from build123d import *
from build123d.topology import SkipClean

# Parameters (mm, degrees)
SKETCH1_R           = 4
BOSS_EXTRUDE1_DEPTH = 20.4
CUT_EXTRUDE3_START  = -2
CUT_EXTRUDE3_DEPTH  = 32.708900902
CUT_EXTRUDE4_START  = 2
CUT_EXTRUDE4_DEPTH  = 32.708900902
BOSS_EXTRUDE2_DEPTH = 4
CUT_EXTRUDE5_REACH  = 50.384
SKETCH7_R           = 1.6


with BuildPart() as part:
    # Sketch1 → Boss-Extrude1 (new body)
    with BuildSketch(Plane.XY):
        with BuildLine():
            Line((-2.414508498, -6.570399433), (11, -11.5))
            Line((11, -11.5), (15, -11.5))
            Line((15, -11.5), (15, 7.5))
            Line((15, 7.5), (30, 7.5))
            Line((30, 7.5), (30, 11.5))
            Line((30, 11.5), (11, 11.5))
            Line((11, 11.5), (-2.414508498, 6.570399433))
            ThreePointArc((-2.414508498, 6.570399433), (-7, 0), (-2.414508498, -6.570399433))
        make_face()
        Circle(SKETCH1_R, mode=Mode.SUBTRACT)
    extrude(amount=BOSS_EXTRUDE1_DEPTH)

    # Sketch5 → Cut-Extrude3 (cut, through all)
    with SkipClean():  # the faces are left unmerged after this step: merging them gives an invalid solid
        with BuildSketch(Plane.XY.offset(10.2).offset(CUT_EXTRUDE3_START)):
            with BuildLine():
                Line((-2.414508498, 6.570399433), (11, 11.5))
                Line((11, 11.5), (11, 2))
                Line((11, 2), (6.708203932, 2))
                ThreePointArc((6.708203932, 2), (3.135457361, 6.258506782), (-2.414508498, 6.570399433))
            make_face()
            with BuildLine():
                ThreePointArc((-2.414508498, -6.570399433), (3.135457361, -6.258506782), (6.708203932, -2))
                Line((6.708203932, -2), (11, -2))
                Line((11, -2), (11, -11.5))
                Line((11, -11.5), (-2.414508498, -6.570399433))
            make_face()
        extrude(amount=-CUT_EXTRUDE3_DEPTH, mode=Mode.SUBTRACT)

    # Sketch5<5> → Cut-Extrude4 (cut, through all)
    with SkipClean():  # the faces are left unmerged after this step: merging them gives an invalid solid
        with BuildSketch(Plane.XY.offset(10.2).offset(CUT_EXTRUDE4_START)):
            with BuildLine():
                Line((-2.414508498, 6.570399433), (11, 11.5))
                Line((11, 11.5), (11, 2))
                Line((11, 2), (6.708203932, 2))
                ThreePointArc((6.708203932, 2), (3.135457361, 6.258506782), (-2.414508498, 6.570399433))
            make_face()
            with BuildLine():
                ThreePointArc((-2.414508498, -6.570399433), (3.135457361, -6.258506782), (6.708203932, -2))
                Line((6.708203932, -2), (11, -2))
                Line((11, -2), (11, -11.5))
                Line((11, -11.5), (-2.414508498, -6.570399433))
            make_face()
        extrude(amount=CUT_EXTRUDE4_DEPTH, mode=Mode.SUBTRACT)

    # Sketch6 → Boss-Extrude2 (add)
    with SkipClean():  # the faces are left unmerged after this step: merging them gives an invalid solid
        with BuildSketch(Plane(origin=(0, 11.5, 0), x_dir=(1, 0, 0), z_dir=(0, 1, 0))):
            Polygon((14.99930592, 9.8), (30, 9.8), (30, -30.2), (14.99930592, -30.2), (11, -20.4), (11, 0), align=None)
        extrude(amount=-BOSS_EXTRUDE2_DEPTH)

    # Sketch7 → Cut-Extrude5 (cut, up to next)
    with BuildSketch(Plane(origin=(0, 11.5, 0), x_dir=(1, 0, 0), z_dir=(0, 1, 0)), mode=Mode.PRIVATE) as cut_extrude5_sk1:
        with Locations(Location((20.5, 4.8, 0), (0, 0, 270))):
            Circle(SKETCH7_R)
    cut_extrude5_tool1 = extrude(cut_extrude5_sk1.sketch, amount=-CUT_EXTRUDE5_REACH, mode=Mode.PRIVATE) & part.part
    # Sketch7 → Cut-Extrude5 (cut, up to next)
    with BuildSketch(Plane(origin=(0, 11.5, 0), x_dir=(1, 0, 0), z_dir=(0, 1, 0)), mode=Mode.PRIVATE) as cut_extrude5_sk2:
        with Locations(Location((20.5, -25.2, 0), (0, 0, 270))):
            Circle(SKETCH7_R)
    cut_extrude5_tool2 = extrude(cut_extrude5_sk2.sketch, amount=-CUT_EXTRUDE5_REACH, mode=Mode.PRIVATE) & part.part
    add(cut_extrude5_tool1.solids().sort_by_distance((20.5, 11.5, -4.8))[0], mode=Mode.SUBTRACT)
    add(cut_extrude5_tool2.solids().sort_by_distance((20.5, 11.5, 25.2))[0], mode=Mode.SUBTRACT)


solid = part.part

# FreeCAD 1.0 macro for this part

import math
import FreeCAD as App
import Part
import Sketcher
Q = App.Units.Quantity


def add_polygon(sketch, points):
    """Adds a closed chain of lines whose ends are joined by coincident constraints."""
    first, n = sketch.GeometryCount, len(points)
    for a, b in zip(points, points[1:] + points[:1]):
        sketch.addGeometry(Part.LineSegment(App.Vector(*a, 0), App.Vector(*b, 0)), False)
    for i in range(n):
        sketch.addConstraint(Sketcher.Constraint("Coincident", first + i, 2, first + (i + 1) % n, 1))

doc = App.newDocument("Part")
body = doc.addObject("PartDesign::Body", "Body")

# Sketch on XY plane
sketch1 = doc.addObject("Sketcher::SketchObject", "Sketch")
body.addObject(sketch1)
sketch1.AttachmentSupport = (doc.XY_Plane, [""])
sketch1.MapMode = "FlatFace"
sketch1.addGeometry([
    Part.LineSegment(App.Vector(-2.414508, -6.570399, 0), App.Vector(11, -11.5, 0)),  # 0
    Part.LineSegment(App.Vector(11, -11.5, 0), App.Vector(15, -11.5, 0)),  # 1
    Part.LineSegment(App.Vector(15, -11.5, 0), App.Vector(15, 7.5, 0)),  # 2
    Part.LineSegment(App.Vector(15, 7.5, 0), App.Vector(30, 7.5, 0)),  # 3
    Part.LineSegment(App.Vector(30, 7.5, 0), App.Vector(30, 11.5, 0)),  # 4
    Part.LineSegment(App.Vector(30, 11.5, 0), App.Vector(11, 11.5, 0)),  # 5
    Part.LineSegment(App.Vector(11, 11.5, 0), App.Vector(-2.414508, 6.570399, 0)),  # 6
    Part.ArcOfCircle(Part.Circle(App.Vector(0, 0, 0), App.Vector(0, 0, 1), 7), math.radians(110.17751), math.radians(249.82249)),  # 7
    Part.Circle(App.Vector(0, 0, 0), App.Vector(0, 0, 1), 4),  # 8
], False)
sketch1.addConstraint([
    Sketcher.Constraint("Coincident", 0, 2, 1, 1),
    Sketcher.Constraint("Coincident", 1, 2, 2, 1),
    Sketcher.Constraint("Coincident", 2, 2, 3, 1),
    Sketcher.Constraint("Coincident", 3, 2, 4, 1),
    Sketcher.Constraint("Coincident", 4, 2, 5, 1),
    Sketcher.Constraint("Coincident", 5, 2, 6, 1),
    Sketcher.Constraint("Tangent", 6, 2, 7, 1),
    Sketcher.Constraint("Tangent", 7, 2, 0, 1),
    Sketcher.Constraint("Horizontal", 1),
    Sketcher.Constraint("Vertical", 2),
    Sketcher.Constraint("Horizontal", 3),
    Sketcher.Constraint("Vertical", 4),
    Sketcher.Constraint("Horizontal", 5),
    Sketcher.Constraint("Coincident", 7, 3, -1, 1),
    Sketcher.Constraint("Coincident", 8, 3, -1, 1),
    Sketcher.Constraint("Symmetric", 0, 2, 5, 2, -1),
    Sketcher.Constraint("Equal", 5, 2),
    Sketcher.Constraint("Equal", 1, 4),
    Sketcher.Constraint("Diameter", 8, Q("8 mm")),
    Sketcher.Constraint("Radius", 7, Q("7 mm")),
    Sketcher.Constraint("DistanceX", 1, 1, 1, 2, Q("4 mm")),
    Sketcher.Constraint("DistanceX", 3, 1, 3, 2, Q("15 mm")),
    Sketcher.Constraint("DistanceX", -1, 1, 0, 2, Q("11 mm")),
])
pad1 = doc.addObject("PartDesign::Pad", "Pad")
body.addObject(pad1)
pad1.Profile = sketch1
pad1.Length = 20.4

# Sketch on XY plane
sketch2 = doc.addObject("Sketcher::SketchObject", "Sketch001")
body.addObject(sketch2)
sketch2.AttachmentSupport = (doc.XY_Plane, [""])
sketch2.MapMode = "FlatFace"
sketch2.AttachmentOffset = App.Placement(App.Vector(0, 0, 8.2), App.Rotation())
sketch2.addGeometry([
    Part.LineSegment(App.Vector(11, 11.5, 0), App.Vector(-2.414508, 6.570399, 0)),  # 0
    Part.ArcOfCircle(Part.Circle(App.Vector(0, 0, 0), App.Vector(0, 0, 1), 7), math.radians(16.60155), math.radians(110.17751)),  # 1
    Part.LineSegment(App.Vector(6.708204, 2, 0), App.Vector(11, 2, 0)),  # 2
    Part.LineSegment(App.Vector(11, 2, 0), App.Vector(11, 11.5, 0)),  # 3
    Part.ArcOfCircle(Part.Circle(App.Vector(0, 0, 0), App.Vector(0, 0, 1), 7), math.radians(-110.17751), math.radians(-16.60155)),  # 4
    Part.LineSegment(App.Vector(-2.414508, -6.570399, 0), App.Vector(11, -11.5, 0)),  # 5
    Part.LineSegment(App.Vector(11, -11.5, 0), App.Vector(11, -2, 0)),  # 6
    Part.LineSegment(App.Vector(11, -2, 0), App.Vector(6.708204, -2, 0)),  # 7
], False)
sketch2.addConstraint([
    Sketcher.Constraint("Tangent", 0, 2, 1, 2),
    Sketcher.Constraint("Coincident", 1, 1, 2, 1),
    Sketcher.Constraint("Coincident", 2, 2, 3, 1),
    Sketcher.Constraint("Coincident", 3, 2, 0, 1),
    Sketcher.Constraint("Tangent", 4, 1, 5, 1),
    Sketcher.Constraint("Coincident", 5, 2, 6, 1),
    Sketcher.Constraint("Coincident", 6, 2, 7, 1),
    Sketcher.Constraint("Coincident", 7, 2, 4, 2),
    Sketcher.Constraint("Horizontal", 2),
    Sketcher.Constraint("Vertical", 3),
    Sketcher.Constraint("Vertical", 6),
    Sketcher.Constraint("Horizontal", 7),
    Sketcher.Constraint("Coincident", 1, 3, -1, 1),
    Sketcher.Constraint("Coincident", 4, 3, -1, 1),
    Sketcher.Constraint("Equal", 1, 4),
    Sketcher.Constraint("Symmetric", 3, 2, 5, 2, -1),
    Sketcher.Constraint("Vertical", 1, 1, 7, 2),
    Sketcher.Constraint("Radius", 1, Q("7 mm")),
    Sketcher.Constraint("DistanceY", 3, 1, 3, 2, Q("9.5 mm")),
    Sketcher.Constraint("DistanceY", -1, 1, 1, 1, Q("2 mm")),
    Sketcher.Constraint("DistanceX", -1, 1, 2, 2, Q("11 mm")),
])
pocket1 = doc.addObject("PartDesign::Pocket", "Pocket")
body.addObject(pocket1)
pocket1.Profile = sketch2
pocket1.Type = "ThroughAll"

# Sketch on XY plane
sketch3 = doc.addObject("Sketcher::SketchObject", "Sketch002")
body.addObject(sketch3)
sketch3.AttachmentSupport = (doc.XY_Plane, [""])
sketch3.MapMode = "FlatFace"
sketch3.AttachmentOffset = App.Placement(App.Vector(0, 0, 12.2), App.Rotation())
sketch3.addGeometry([
    Part.LineSegment(App.Vector(11, 11.5, 0), App.Vector(-2.414508, 6.570399, 0)),  # 0
    Part.ArcOfCircle(Part.Circle(App.Vector(0, 0, 0), App.Vector(0, 0, 1), 7), math.radians(16.60155), math.radians(110.17751)),  # 1
    Part.LineSegment(App.Vector(6.708204, 2, 0), App.Vector(11, 2, 0)),  # 2
    Part.LineSegment(App.Vector(11, 2, 0), App.Vector(11, 11.5, 0)),  # 3
    Part.ArcOfCircle(Part.Circle(App.Vector(0, 0, 0), App.Vector(0, 0, 1), 7), math.radians(-110.17751), math.radians(-16.60155)),  # 4
    Part.LineSegment(App.Vector(-2.414508, -6.570399, 0), App.Vector(11, -11.5, 0)),  # 5
    Part.LineSegment(App.Vector(11, -11.5, 0), App.Vector(11, -2, 0)),  # 6
    Part.LineSegment(App.Vector(11, -2, 0), App.Vector(6.708204, -2, 0)),  # 7
], False)
sketch3.addConstraint([
    Sketcher.Constraint("Tangent", 0, 2, 1, 2),
    Sketcher.Constraint("Coincident", 1, 1, 2, 1),
    Sketcher.Constraint("Coincident", 2, 2, 3, 1),
    Sketcher.Constraint("Coincident", 3, 2, 0, 1),
    Sketcher.Constraint("Tangent", 4, 1, 5, 1),
    Sketcher.Constraint("Coincident", 5, 2, 6, 1),
    Sketcher.Constraint("Coincident", 6, 2, 7, 1),
    Sketcher.Constraint("Coincident", 7, 2, 4, 2),
    Sketcher.Constraint("Horizontal", 2),
    Sketcher.Constraint("Vertical", 3),
    Sketcher.Constraint("Vertical", 6),
    Sketcher.Constraint("Horizontal", 7),
    Sketcher.Constraint("Coincident", 1, 3, -1, 1),
    Sketcher.Constraint("Coincident", 4, 3, -1, 1),
    Sketcher.Constraint("Equal", 1, 4),
    Sketcher.Constraint("Symmetric", 3, 2, 5, 2, -1),
    Sketcher.Constraint("Vertical", 1, 1, 7, 2),
    Sketcher.Constraint("Radius", 1, Q("7 mm")),
    Sketcher.Constraint("DistanceY", 3, 1, 3, 2, Q("9.5 mm")),
    Sketcher.Constraint("DistanceY", -1, 1, 1, 1, Q("2 mm")),
    Sketcher.Constraint("DistanceX", -1, 1, 2, 2, Q("11 mm")),
])
pocket2 = doc.addObject("PartDesign::Pocket", "Pocket001")
body.addObject(pocket2)
pocket2.Profile = sketch3
pocket2.Type = "ThroughAll"
pocket2.Reversed = True

# Sketch on XZ plane
sketch4 = doc.addObject("Sketcher::SketchObject", "Sketch003")
body.addObject(sketch4)
sketch4.AttachmentSupport = (doc.XZ_Plane, [""])
sketch4.MapMode = "FlatFace"
sketch4.AttachmentOffset = App.Placement(App.Vector(0, 0, -11.5), App.Rotation())
add_polygon(sketch4, [(30, -9.8), (14.999306, -9.8), (11, 0), (11, 20.4), (14.999306, 30.2), (30, 30.2)])  # lines 0-5
sketch4.addConstraint([
    Sketcher.Constraint("Horizontal", 0),
    Sketcher.Constraint("Vertical", 2),
    Sketcher.Constraint("Horizontal", 4),
    Sketcher.Constraint("Vertical", 5),
    Sketcher.Constraint("PointOnObject", 1, 2, -1),
    Sketcher.Constraint("Vertical", 0, 2, 3, 2),
    Sketcher.Constraint("Equal", 1, 3),
    Sketcher.Constraint("DistanceY", 5, 2, 5, 1, Q("40 mm")),
    Sketcher.Constraint("DistanceY", 2, 1, 2, 2, Q("20.4 mm")),
    Sketcher.Constraint("DistanceX", -1, 1, 1, 2, Q("11 mm")),
    Sketcher.Constraint("DistanceX", -1, 1, 4, 2, Q("30 mm")),
    Sketcher.Constraint("Angle", 1, Q("112.2 deg")),
])
pad2 = doc.addObject("PartDesign::Pad", "Pad001")
body.addObject(pad2)
pad2.Profile = sketch4
pad2.Length = 4

# Sketch on XZ plane
sketch5 = doc.addObject("Sketcher::SketchObject", "Sketch004")
body.addObject(sketch5)
sketch5.AttachmentSupport = (doc.XZ_Plane, [""])
sketch5.MapMode = "FlatFace"
sketch5.AttachmentOffset = App.Placement(App.Vector(0, 0, -11.5), App.Rotation())
sketch5.addGeometry(Part.Circle(App.Vector(20.5, -4.8, 0), App.Vector(0, 0, 1), 1.6), False)
sketch5.addConstraint([
    Sketcher.Constraint("Diameter", 0, Q("3.2 mm")),
    Sketcher.Constraint("DistanceX", -1, 1, 0, 3, Q("20.5 mm")),
    Sketcher.Constraint("DistanceY", 0, 3, -1, 1, Q("4.8 mm")),
])
pocket3 = doc.addObject("PartDesign::Pocket", "Pocket002")
body.addObject(pocket3)
pocket3.Profile = sketch5
pocket3.Type = "UpToFirst"
pocket3.Reversed = True

# Sketch on XZ plane
sketch6 = doc.addObject("Sketcher::SketchObject", "Sketch005")
body.addObject(sketch6)
sketch6.AttachmentSupport = (doc.XZ_Plane, [""])
sketch6.MapMode = "FlatFace"
sketch6.AttachmentOffset = App.Placement(App.Vector(0, 0, -11.5), App.Rotation())
sketch6.addGeometry(Part.Circle(App.Vector(20.5, 25.2, 0), App.Vector(0, 0, 1), 1.6), False)
sketch6.addConstraint([
    Sketcher.Constraint("Diameter", 0, Q("3.2 mm")),
    Sketcher.Constraint("DistanceX", -1, 1, 0, 3, Q("20.5 mm")),
    Sketcher.Constraint("DistanceY", -1, 1, 0, 3, Q("25.2 mm")),
])
pocket4 = doc.addObject("PartDesign::Pocket", "Pocket003")
body.addObject(pocket4)
pocket4.Profile = sketch6
pocket4.Type = "UpToFirst"
pocket4.Reversed = True

doc.recompute()
